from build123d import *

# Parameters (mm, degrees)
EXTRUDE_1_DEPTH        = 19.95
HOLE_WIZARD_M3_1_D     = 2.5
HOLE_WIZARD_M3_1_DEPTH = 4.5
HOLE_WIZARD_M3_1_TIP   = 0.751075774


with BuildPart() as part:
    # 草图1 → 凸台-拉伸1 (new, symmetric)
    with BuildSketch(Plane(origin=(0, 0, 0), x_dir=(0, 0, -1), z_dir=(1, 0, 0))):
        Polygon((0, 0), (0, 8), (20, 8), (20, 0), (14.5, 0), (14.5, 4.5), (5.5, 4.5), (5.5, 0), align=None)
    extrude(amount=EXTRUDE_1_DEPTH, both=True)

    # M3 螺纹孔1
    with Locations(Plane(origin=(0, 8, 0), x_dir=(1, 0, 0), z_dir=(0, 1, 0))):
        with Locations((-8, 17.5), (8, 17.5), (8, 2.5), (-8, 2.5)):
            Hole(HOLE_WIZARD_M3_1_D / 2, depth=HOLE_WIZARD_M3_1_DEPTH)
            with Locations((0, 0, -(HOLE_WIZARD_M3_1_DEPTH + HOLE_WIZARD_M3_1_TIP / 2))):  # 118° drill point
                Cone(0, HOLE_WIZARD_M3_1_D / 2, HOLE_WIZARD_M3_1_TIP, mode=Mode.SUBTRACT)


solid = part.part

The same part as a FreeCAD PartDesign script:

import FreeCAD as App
import Part
import Sketcher
from FreeCAD import Vector
Q = App.Units.Quantity


def add_polygon(sketch, points):
    """Adds a closed chain of lines whose ends are joined by coincident constraints."""
    first, n = sketch.GeometryCount, len(points)
    for a, b in zip(points, points[1:] + points[:1]):
        sketch.addGeometry(Part.LineSegment(App.Vector(*a, 0), App.Vector(*b, 0)), False)
    for i in range(n):
        sketch.addConstraint(Sketcher.Constraint("Coincident", first + i, 2, first + (i + 1) % n, 1))

doc = App.newDocument("Part")
body = doc.addObject("PartDesign::Body", "Body")

sketch1 = body.newObject("Sketcher::SketchObject", "Sketch")
sketch1.AttachmentSupport = (doc.getObject("YZ_Plane"), [""])
sketch1.MapMode = "FlatFace"
add_polygon(sketch1, [(8, 0), (0, 0), (0, -5.5), (4.5, -5.5), (4.5, -14.5), (0, -14.5), (0, -20), (8, -20)])
sketch1.addConstraint([
    Sketcher.Constraint("Horizontal", 0),
    Sketcher.Constraint("Vertical", 1),
    Sketcher.Constraint("Horizontal", 2),
    Sketcher.Constraint("Vertical", 3),
    Sketcher.Constraint("Horizontal", 4),
    Sketcher.Constraint("Vertical", 5),
    Sketcher.Constraint("Horizontal", 6),
    Sketcher.Constraint("Vertical", 7),
    Sketcher.Constraint("Coincident", 0, 2, -1, 1),
    Sketcher.Constraint("PointOnObject", 4, 2, -2),
    Sketcher.Constraint("Equal", 1, 5),
    Sketcher.Constraint("DistanceX", 0, 2, 0, 1, Q("8 mm")),
    Sketcher.Constraint("DistanceY", 3, 2, 3, 1, Q("9 mm")),
    Sketcher.Constraint("DistanceY", 7, 1, 7, 2, Q("20 mm")),
    Sketcher.Constraint("DistanceX", 2, 1, 2, 2, Q("4.5 mm")),
])
pad1 = body.newObject("PartDesign::Pad", "Pad")
pad1.Profile = sketch1
pad1.Length = 39.9
pad1.Midplane = True

sketch2 = body.newObject("Sketcher::SketchObject", "Sketch001")
sketch2.AttachmentSupport = (doc.getObject("XZ_Plane"), [""])
sketch2.MapMode = "FlatFace"
sketch2.AttachmentOffset = App.Placement(Vector(0, 0, -8), App.Rotation())
sketch2.addGeometry([
    Part.Circle(Vector(-8, -17.5, 0), Vector(0, 0, 1), 1.25),
    Part.Circle(Vector(8, -17.5, 0), Vector(0, 0, 1), 1.25),
    Part.Circle(Vector(8, -2.5, 0), Vector(0, 0, 1), 1.25),
    Part.Circle(Vector(-8, -2.5, 0), Vector(0, 0, 1), 1.25),
], False)
sketch2.addConstraint([
    Sketcher.Constraint("Equal", 0, 1),
    Sketcher.Constraint("Equal", 1, 2),
    Sketcher.Constraint("Equal", 2, 3),
    Sketcher.Constraint("Symmetric", 0, 3, 1, 3, -2),
    Sketcher.Constraint("Symmetric", 2, 3, 3, 3, -2),
    Sketcher.Constraint("Vertical", 1, 3, 2, 3),
    Sketcher.Constraint("Diameter", 0, Q("2.5 mm")),
    Sketcher.Constraint("DistanceX", 0, 3, -1, 1, Q("8 mm")),
    Sketcher.Constraint("DistanceY", 1, 3, 2, 3, Q("15 mm")),
    Sketcher.Constraint("DistanceY", 0, 3, -1, 1, Q("17.5 mm")),
])
doc.recompute()
hole = body.newObject("PartDesign::Hole", "Hole")
hole.Profile = sketch2
hole.ThreadType = "None"
hole.Diameter = 2.5
hole.DepthType = "Dimension"
hole.Depth = 4.5
hole.DrillPoint = "Angled"
hole.DrillPointAngle = 118
hole.Reversed = True

doc.recompute()
